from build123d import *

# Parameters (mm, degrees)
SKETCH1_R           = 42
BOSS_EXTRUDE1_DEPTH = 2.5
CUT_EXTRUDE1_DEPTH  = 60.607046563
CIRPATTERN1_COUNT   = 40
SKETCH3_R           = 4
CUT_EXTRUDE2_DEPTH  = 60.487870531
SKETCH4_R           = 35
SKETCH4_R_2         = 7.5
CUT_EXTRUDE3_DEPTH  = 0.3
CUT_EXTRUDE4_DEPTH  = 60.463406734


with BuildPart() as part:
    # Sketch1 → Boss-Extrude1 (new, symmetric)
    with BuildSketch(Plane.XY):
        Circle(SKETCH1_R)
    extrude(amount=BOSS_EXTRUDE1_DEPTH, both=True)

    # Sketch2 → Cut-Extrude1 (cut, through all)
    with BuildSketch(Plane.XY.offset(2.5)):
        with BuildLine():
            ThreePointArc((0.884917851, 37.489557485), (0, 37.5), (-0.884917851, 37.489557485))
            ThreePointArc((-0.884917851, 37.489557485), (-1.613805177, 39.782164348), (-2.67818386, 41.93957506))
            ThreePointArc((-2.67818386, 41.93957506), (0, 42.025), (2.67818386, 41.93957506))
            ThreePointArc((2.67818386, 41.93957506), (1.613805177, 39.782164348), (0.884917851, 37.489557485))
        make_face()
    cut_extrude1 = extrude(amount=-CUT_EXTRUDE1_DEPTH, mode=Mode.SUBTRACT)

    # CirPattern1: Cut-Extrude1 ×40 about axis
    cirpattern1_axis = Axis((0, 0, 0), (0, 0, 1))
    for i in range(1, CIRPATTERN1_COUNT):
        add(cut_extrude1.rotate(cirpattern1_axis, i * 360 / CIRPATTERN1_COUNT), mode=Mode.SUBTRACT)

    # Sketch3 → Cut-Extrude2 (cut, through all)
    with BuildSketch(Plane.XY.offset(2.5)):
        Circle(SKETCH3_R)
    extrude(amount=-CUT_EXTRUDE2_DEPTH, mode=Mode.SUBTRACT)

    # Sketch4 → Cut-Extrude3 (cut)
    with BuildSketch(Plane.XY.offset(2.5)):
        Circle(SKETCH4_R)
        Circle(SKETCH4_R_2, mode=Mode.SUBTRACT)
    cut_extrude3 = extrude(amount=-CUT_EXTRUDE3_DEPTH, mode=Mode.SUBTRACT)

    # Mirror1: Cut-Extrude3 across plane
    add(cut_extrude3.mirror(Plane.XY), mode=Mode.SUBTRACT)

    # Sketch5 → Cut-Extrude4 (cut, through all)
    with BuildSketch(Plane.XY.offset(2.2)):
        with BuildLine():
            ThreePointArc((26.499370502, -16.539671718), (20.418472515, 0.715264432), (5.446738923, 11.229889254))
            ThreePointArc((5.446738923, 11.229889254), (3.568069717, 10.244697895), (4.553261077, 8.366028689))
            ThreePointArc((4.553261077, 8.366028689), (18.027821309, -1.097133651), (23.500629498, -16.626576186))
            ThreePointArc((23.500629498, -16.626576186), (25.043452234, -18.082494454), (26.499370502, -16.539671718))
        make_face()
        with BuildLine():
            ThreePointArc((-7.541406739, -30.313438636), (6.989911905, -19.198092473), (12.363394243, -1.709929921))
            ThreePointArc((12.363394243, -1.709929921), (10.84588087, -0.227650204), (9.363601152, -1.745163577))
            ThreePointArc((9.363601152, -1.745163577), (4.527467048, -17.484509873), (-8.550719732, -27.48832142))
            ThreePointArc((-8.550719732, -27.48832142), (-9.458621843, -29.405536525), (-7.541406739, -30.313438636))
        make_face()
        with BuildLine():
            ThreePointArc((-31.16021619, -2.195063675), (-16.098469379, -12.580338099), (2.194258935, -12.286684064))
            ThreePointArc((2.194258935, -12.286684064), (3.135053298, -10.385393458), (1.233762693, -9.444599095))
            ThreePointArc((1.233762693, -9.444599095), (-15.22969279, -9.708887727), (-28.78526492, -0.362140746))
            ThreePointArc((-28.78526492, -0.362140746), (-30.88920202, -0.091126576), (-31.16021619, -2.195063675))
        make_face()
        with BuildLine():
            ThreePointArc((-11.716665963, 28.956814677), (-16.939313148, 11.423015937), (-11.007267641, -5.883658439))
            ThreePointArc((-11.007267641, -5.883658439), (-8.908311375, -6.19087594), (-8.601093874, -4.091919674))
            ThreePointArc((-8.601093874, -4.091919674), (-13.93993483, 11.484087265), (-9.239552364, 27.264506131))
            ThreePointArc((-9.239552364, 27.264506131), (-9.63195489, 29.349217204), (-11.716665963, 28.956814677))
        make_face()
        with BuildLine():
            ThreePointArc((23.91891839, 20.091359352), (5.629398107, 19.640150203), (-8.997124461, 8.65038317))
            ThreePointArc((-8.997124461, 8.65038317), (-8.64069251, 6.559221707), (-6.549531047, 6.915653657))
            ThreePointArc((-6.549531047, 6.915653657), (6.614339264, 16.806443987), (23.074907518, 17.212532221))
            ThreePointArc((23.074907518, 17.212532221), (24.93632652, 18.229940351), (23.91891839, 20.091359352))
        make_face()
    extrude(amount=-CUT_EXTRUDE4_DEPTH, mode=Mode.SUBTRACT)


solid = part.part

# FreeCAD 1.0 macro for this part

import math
import FreeCAD as App
import Part
import Sketcher
from FreeCAD import Vector

doc = App.newDocument("Part")
body = doc.addObject("PartDesign::Body", "Body")

# Sketch on XY plane
sketch1 = doc.addObject("Sketcher::SketchObject", "Sketch")
body.addObject(sketch1)
sketch1.AttachmentSupport = (doc.XY_Plane, [""])
sketch1.MapMode = "FlatFace"
sketch1.addGeometry(Part.Circle(Vector(0, 0, 0), Vector(0, 0, 1), 42), False)
sketch1.addConstraint([
    Sketcher.Constraint("Coincident", 0, 3, -1, 1),
    Sketcher.Constraint("Diameter", 0, 84.0),
])
pad1 = doc.addObject("PartDesign::Pad", "Pad")
body.addObject(pad1)
pad1.Profile = sketch1
pad1.Length = 5
pad1.Midplane = True

# Sketch on XY plane
sketch2 = doc.addObject("Sketcher::SketchObject", "Sketch001")
body.addObject(sketch2)
sketch2.AttachmentSupport = (doc.XY_Plane, [""])
sketch2.MapMode = "FlatFace"
sketch2.AttachmentOffset = App.Placement(Vector(0, 0, 2.5), App.Rotation())
sketch2.addGeometry([
    Part.ArcOfCircle(Part.Circle(Vector(0, -0.000001, 0), Vector(0, 0, 1), 37.500001), math.radians(88.64782), math.radians(91.35218)),
    Part.ArcOfCircle(Part.Circle(Vector(16.454136, 33.801815, 0), Vector(0, 0, 1), 16), math.radians(149.428712), math.radians(166.674436)),
    Part.ArcOfCircle(Part.Circle(Vector(0, 0, 0), Vector(0, 0, 1), 42.025), math.radians(86.346158), math.radians(93.653842)),
    Part.ArcOfCircle(Part.Circle(Vector(-16.454136, 33.801815, 0), Vector(0, 0, 1), 16), math.radians(13.325564), math.radians(30.571288)),
], False)
sketch2.addConstraint([
    Sketcher.Constraint("Coincident", 0, 1, 1, 2),
    Sketcher.Constraint("Coincident", 1, 1, 2, 1),
    Sketcher.Constraint("Coincident", 2, 2, 3, 2),
    Sketcher.Constraint("Coincident", 3, 1, 0, 2),
    Sketcher.Constraint("Coincident", 0, 3, -1, 1),
    Sketcher.Constraint("Coincident", 2, 3, -1, 1),
    Sketcher.Constraint("Equal", 1, 3),
    Sketcher.Constraint("Symmetric", 1, 3, 3, 3, -2),
    Sketcher.Constraint("Radius", 1, 16.0),
    Sketcher.Constraint("Radius", 0, 37.500001),
    Sketcher.Constraint("Radius", 2, 42.025),
    Sketcher.Constraint("DistanceX", 2, 2, 0, 1, 3.563102),
    Sketcher.Constraint("DistanceX", 3, 3, 1, 3, 32.908272),
])
pocket1 = doc.addObject("PartDesign::Pocket", "Pocket")
body.addObject(pocket1)
pocket1.Profile = sketch2
pocket1.Type = "ThroughAll"
doc.recompute()

polarpattern = doc.addObject("PartDesign::PolarPattern", "PolarPattern")
body.addObject(polarpattern)
polarpattern.Originals = [pocket1]
polarpattern.Axis = (doc.Z_Axis, [""])
polarpattern.Angle = 360
polarpattern.Occurrences = 40
body.Tip = polarpattern

# Sketch on XY plane
sketch3 = doc.addObject("Sketcher::SketchObject", "Sketch002")
body.addObject(sketch3)
sketch3.AttachmentSupport = (doc.XY_Plane, [""])
sketch3.MapMode = "FlatFace"
sketch3.AttachmentOffset = App.Placement(Vector(0, 0, 2.5), App.Rotation())
sketch3.addGeometry(Part.Circle(Vector(0, 0, 0), Vector(0, 0, 1), 4), False)
sketch3.addConstraint([
    Sketcher.Constraint("Coincident", 0, 3, -1, 1),
    Sketcher.Constraint("Diameter", 0, 8.0),
])
pocket2 = doc.addObject("PartDesign::Pocket", "Pocket001")
body.addObject(pocket2)
pocket2.Profile = sketch3
pocket2.Type = "ThroughAll"

# Sketch on XY plane
sketch4 = doc.addObject("Sketcher::SketchObject", "Sketch003")
body.addObject(sketch4)
sketch4.AttachmentSupport = (doc.XY_Plane, [""])
sketch4.MapMode = "FlatFace"
sketch4.AttachmentOffset = App.Placement(Vector(0, 0, 2.5), App.Rotation())
sketch4.addGeometry([
    Part.Circle(Vector(0, 0, 0), Vector(0, 0, 1), 35),
    Part.Circle(Vector(0, 0, 0), Vector(0, 0, 1), 7.5),
], False)
sketch4.addConstraint([
    Sketcher.Constraint("Coincident", 0, 3, -1, 1),
    Sketcher.Constraint("Coincident", 1, 3, -1, 1),
    Sketcher.Constraint("Diameter", 0, 70.0),
    Sketcher.Constraint("Diameter", 1, 15.0),
])
pocket3 = doc.addObject("PartDesign::Pocket", "Pocket002")
body.addObject(pocket3)
pocket3.Profile = sketch4
pocket3.Length = 0.3
doc.recompute()

mirrored = doc.addObject("PartDesign::Mirrored", "Mirrored")
body.addObject(mirrored)
mirrored.Originals = [pocket3]
mirrored.MirrorPlane = (doc.XY_Plane, [""])
body.Tip = mirrored

# Sketch on XY plane
sketch5 = doc.addObject("Sketcher::SketchObject", "Sketch004")
body.addObject(sketch5)
sketch5.AttachmentSupport = (doc.XY_Plane, [""])
sketch5.MapMode = "FlatFace"
sketch5.AttachmentOffset = App.Placement(Vector(0, 0, 2.2), App.Rotation())
sketch5.addGeometry([
    Part.ArcOfCircle(Part.Circle(Vector(-3.48804, -17.408716, 0), Vector(0, 0, 1), 30), math.radians(1.659985), math.radians(72.672929)),  # 0
    Part.ArcOfCircle(Part.Circle(Vector(5, 9.797959, 0), Vector(0, 0, 1), 1.5), math.radians(72.672929), math.radians(252.672929)),  # 1
    Part.ArcOfCircle(Part.Circle(Vector(-3.48804, -17.408716, 0), Vector(0, 0, 1), 27), math.radians(1.659985), math.radians(72.672929)),  # 2
    Part.ArcOfCircle(Part.Circle(Vector(25, -16.583124, 0), Vector(0, 0, 1), 1.5), math.radians(-178.340015), math.radians(1.659985)),  # 3
    Part.ArcOfCircle(Part.Circle(Vector(-17.634537, -2.062266, 0), Vector(0, 0, 1), 30), math.radians(-70.340015), math.radians(0.672929)),  # 4
    Part.ArcOfCircle(Part.Circle(Vector(10.863498, -1.727547, 0), Vector(0, 0, 1), 1.5), math.radians(0.672929), math.radians(180.672929)),  # 5
    Part.ArcOfCircle(Part.Circle(Vector(-17.634537, -2.062266, 0), Vector(0, 0, 1), 27), math.radians(-70.340015), math.radians(0.672929)),  # 6
    Part.ArcOfCircle(Part.Circle(Vector(-8.046063, -28.90088, 0), Vector(0, 0, 1), 1.5), math.radians(109.659985), math.radians(289.659985)),  # 7
    Part.ArcOfCircle(Part.Circle(Vector(-7.410703, 16.134166, 0), Vector(0, 0, 1), 30), math.radians(-142.340015), math.radians(-71.327071)),  # 8
    Part.ArcOfCircle(Part.Circle(Vector(1.714011, -10.865642, 0), Vector(0, 0, 1), 1.5), math.radians(-71.327071), math.radians(108.672929)),  # 9
    Part.ArcOfCircle(Part.Circle(Vector(-7.410703, 16.134166, 0), Vector(0, 0, 1), 27), math.radians(-142.340015), math.radians(-71.327071)),  # 10
    Part.ArcOfCircle(Part.Circle(Vector(-29.972741, -1.278602, 0), Vector(0, 0, 1), 1.5), math.radians(37.659985), math.radians(217.659985)),  # 11
    Part.ArcOfCircle(Part.Circle(Vector(13.05447, 12.033729, 0), Vector(0, 0, 1), 30), math.radians(145.659985), math.radians(216.672929)),  # 12
    Part.ArcOfCircle(Part.Circle(Vector(-9.804181, -4.987789, 0), Vector(0, 0, 1), 1.5), math.radians(-143.327071), math.radians(36.672929)),  # 13
    Part.ArcOfCircle(Part.Circle(Vector(13.05447, 12.033729, 0), Vector(0, 0, 1), 27), math.radians(145.659985), math.radians(216.672929)),  # 14
    Part.ArcOfCircle(Part.Circle(Vector(-10.478109, 28.11066, 0), Vector(0, 0, 1), 1.5), math.radians(-34.340015), math.radians(145.659985)),  # 15
    Part.ArcOfCircle(Part.Circle(Vector(15.47881, -8.696912, 0), Vector(0, 0, 1), 30), math.radians(73.659985), math.radians(144.672929)),  # 16
    Part.ArcOfCircle(Part.Circle(Vector(-7.773328, 7.783018, 0), Vector(0, 0, 1), 1.5), math.radians(144.672929), math.radians(324.672929)),  # 17
    Part.ArcOfCircle(Part.Circle(Vector(15.47881, -8.696912, 0), Vector(0, 0, 1), 27), math.radians(73.659985), math.radians(144.672929)),  # 18
    Part.ArcOfCircle(Part.Circle(Vector(23.496913, 18.651946, 0), Vector(0, 0, 1), 1.5), math.radians(-106.340015), math.radians(73.659985)),  # 19
], False)
sketch5.addConstraint([
    Sketcher.Constraint("Tangent", 0, 2, 1, 1),
    Sketcher.Constraint("Tangent", 1, 2, 2, 2),
    Sketcher.Constraint("Tangent", 2, 1, 3, 1),
    Sketcher.Constraint("Tangent", 3, 2, 0, 1),
    Sketcher.Constraint("Tangent", 4, 2, 5, 1),
    Sketcher.Constraint("Tangent", 5, 2, 6, 2),
    Sketcher.Constraint("Tangent", 6, 1, 7, 1),
    Sketcher.Constraint("Tangent", 7, 2, 4, 1),
    Sketcher.Constraint("Tangent", 8, 2, 9, 1),
    Sketcher.Constraint("Tangent", 9, 2, 10, 2),
    Sketcher.Constraint("Tangent", 10, 1, 11, 1),
    Sketcher.Constraint("Tangent", 11, 2, 8, 1),
    Sketcher.Constraint("Tangent", 12, 2, 13, 1),
    Sketcher.Constraint("Tangent", 13, 2, 14, 2),
    Sketcher.Constraint("Tangent", 14, 1, 15, 1),
    Sketcher.Constraint("Tangent", 15, 2, 12, 1),
    Sketcher.Constraint("Tangent", 16, 2, 17, 1),
    Sketcher.Constraint("Tangent", 17, 2, 18, 2),
    Sketcher.Constraint("Tangent", 18, 1, 19, 1),
    Sketcher.Constraint("Tangent", 19, 2, 16, 1),
    Sketcher.Constraint("Coincident", 2, 3, 0, 3),
    Sketcher.Constraint("Coincident", 6, 3, 4, 3),
    Sketcher.Constraint("Coincident", 10, 3, 8, 3),
    Sketcher.Constraint("Coincident", 14, 3, 12, 3),
    Sketcher.Constraint("Coincident", 18, 3, 16, 3),
    Sketcher.Constraint("Equal", 0, 4),
    Sketcher.Constraint("Equal", 3, 5),
    Sketcher.Constraint("Equal", 4, 8),
    Sketcher.Constraint("Equal", 7, 9),
    Sketcher.Constraint("Equal", 8, 12),
    Sketcher.Constraint("Equal", 11, 13),
    Sketcher.Constraint("Equal", 12, 16),
    Sketcher.Constraint("Equal", 15, 17),
    Sketcher.Constraint("Radius", 0, 30.0),
    Sketcher.Constraint("Radius", 2, 27.0),
    Sketcher.Constraint("DistanceX", -1, 1, 1, 3, 5.0),
    Sketcher.Constraint("DistanceX", -1, 1, 3, 3, 25.0),
    Sketcher.Constraint("DistanceX", -1, 1, 5, 2, 9.363601),
    Sketcher.Constraint("DistanceY", 9, 2, -1, 1, 9.444599),
    Sketcher.Constraint("DistanceX", 8, 3, 5, 3, 18.274201),
    Sketcher.Constraint("DistanceY", 9, 3, 1, 3, 20.663601),
    Sketcher.Constraint("DistanceX", 11, 3, 2, 3, 26.484701),
    Sketcher.Constraint("DistanceY", 1, 3, 15, 3, 18.312701),
    Sketcher.Constraint("DistanceX", 9, 3, 16, 3, 13.764799),
    Sketcher.Constraint("DistanceY", 1, 2, 12, 3, 3.667701),
    Sketcher.Constraint("DistanceX", 0, 3, 8, 2, 5.682298),
    Sketcher.Constraint("DistanceX", 0, 3, -1, 1, 3.48804),
    Sketcher.Constraint("DistanceY", 7, 3, -1, 1, 28.90088),
    Sketcher.Constraint("DistanceX", -1, 1, 12, 3, 13.05447),
    Sketcher.Constraint("DistanceX", 13, 3, -1, 1, 9.804181),
    Sketcher.Constraint("DistanceY", 16, 3, -1, 1, 8.696912),
    Sketcher.Constraint("DistanceY", -1, 1, 17, 3, 7.783018),
    Sketcher.Constraint("DistanceY", 4, 2, -1, 1, 1.70993),
    Sketcher.Constraint("DistanceX", 6, 1, -1, 1, 8.55072),
    Sketcher.Constraint("DistanceX", -1, 1, 19, 2, 23.918918),
])
pocket4 = doc.addObject("PartDesign::Pocket", "Pocket003")
body.addObject(pocket4)
pocket4.Profile = sketch5
pocket4.Type = "ThroughAll"

doc.recompute()
